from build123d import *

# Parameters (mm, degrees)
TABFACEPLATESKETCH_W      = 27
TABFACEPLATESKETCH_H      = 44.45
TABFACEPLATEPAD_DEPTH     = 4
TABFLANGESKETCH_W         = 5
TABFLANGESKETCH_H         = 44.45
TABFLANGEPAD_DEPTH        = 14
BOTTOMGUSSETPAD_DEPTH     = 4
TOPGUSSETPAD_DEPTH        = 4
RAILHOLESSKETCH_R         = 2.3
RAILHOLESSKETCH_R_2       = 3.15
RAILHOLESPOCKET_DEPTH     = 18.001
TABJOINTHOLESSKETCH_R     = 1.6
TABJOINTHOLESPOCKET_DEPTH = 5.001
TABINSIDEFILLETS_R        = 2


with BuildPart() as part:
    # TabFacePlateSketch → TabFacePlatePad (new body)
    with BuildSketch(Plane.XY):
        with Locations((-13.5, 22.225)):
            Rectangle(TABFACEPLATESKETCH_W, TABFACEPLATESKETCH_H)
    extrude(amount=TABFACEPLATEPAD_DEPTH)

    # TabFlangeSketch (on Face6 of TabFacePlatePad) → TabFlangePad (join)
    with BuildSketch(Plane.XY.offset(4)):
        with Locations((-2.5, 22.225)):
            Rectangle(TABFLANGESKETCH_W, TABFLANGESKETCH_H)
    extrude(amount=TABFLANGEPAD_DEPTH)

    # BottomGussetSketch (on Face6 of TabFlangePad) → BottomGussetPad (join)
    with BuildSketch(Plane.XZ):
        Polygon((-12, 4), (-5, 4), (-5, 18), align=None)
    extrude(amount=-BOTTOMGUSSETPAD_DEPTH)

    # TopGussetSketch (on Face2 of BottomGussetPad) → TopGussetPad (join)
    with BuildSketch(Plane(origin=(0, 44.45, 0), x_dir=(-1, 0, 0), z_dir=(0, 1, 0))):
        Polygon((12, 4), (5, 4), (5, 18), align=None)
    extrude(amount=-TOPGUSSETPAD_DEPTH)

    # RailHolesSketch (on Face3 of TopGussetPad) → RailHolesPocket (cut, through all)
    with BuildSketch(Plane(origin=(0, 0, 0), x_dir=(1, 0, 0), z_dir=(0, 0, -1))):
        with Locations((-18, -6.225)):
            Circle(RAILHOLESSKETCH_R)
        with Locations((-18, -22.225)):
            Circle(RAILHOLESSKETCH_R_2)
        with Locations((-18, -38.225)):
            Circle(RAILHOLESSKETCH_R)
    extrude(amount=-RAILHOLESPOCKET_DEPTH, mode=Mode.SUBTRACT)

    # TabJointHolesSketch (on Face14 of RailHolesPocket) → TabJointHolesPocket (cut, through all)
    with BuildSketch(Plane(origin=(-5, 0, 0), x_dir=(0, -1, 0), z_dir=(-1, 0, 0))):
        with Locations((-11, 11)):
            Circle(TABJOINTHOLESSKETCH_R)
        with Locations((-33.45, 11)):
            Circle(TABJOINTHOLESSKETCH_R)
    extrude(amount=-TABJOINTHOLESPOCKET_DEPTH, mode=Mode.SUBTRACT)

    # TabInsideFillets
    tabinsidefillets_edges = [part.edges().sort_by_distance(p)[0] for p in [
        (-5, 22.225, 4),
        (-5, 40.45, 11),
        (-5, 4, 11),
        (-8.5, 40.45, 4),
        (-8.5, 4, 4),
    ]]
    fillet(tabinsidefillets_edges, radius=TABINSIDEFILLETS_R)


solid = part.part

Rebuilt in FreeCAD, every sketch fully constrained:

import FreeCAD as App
import Part
import Sketcher
Q = App.Units.Quantity


def edges_at(feature, points):
    """Names of the edges that pass closest to the given points."""
    edges = feature.Shape.Edges
    near = lambda p: min(range(len(edges)), key=lambda i: edges[i].distToShape(Part.Vertex(*p))[0])
    return sorted({f"Edge{near(p) + 1}" for p in points})

doc = App.newDocument("Part")
body = doc.addObject("PartDesign::Body", "Body")

sketch1 = body.newObject("Sketcher::SketchObject", "Sketch")
sketch1.AttachmentSupport = (doc.getObject("XY_Plane"), [""])
sketch1.MapMode = "FlatFace"
sketch1.addGeometry(Part.LineSegment(App.Vector(-27, 44, 0), App.Vector(-27, 0, 0)), False)
sketch1.addGeometry(Part.LineSegment(App.Vector(-27, 0, 0), App.Vector(0, 0, 0)), False)
sketch1.addGeometry(Part.LineSegment(App.Vector(0, 0, 0), App.Vector(0, 44, 0)), False)
sketch1.addGeometry(Part.LineSegment(App.Vector(0, 44, 0), App.Vector(-27, 44, 0)), False)
sketch1.addConstraint(Sketcher.Constraint("Coincident", 0, 2, 1, 1))
sketch1.addConstraint(Sketcher.Constraint("Coincident", 1, 2, 2, 1))
sketch1.addConstraint(Sketcher.Constraint("Coincident", 2, 2, 3, 1))
sketch1.addConstraint(Sketcher.Constraint("Coincident", 3, 2, 0, 1))
sketch1.addConstraint(Sketcher.Constraint("Vertical", 0))
sketch1.addConstraint(Sketcher.Constraint("Horizontal", 1))
sketch1.addConstraint(Sketcher.Constraint("Vertical", 2))
sketch1.addConstraint(Sketcher.Constraint("Horizontal", 3))
sketch1.addConstraint(Sketcher.Constraint("Coincident", 1, 2, -1, 1))
sketch1.addConstraint(Sketcher.Constraint("DistanceX", 1, 1, 1, 2, Q("27 mm")))
sketch1.addConstraint(Sketcher.Constraint("DistanceY", 0, 2, 0, 1, Q("44.45 mm")))
pad1 = body.newObject("PartDesign::Pad", "Pad")
pad1.Profile = sketch1
pad1.Length = 4

sketch2 = body.newObject("Sketcher::SketchObject", "Sketch001")
sketch2.AttachmentSupport = (doc.getObject("XY_Plane"), [""])
sketch2.MapMode = "FlatFace"
sketch2.AttachmentOffset = App.Placement(App.Vector(0, 0, 4), App.Rotation())
sketch2.addGeometry(Part.LineSegment(App.Vector(-5, 44, 0), App.Vector(-5, 0, 0)), False)
sketch2.addGeometry(Part.LineSegment(App.Vector(-5, 0, 0), App.Vector(0, 0, 0)), False)
sketch2.addGeometry(Part.LineSegment(App.Vector(0, 0, 0), App.Vector(0, 44, 0)), False)
sketch2.addGeometry(Part.LineSegment(App.Vector(0, 44, 0), App.Vector(-5, 44, 0)), False)
sketch2.addConstraint(Sketcher.Constraint("Coincident", 0, 2, 1, 1))
sketch2.addConstraint(Sketcher.Constraint("Coincident", 1, 2, 2, 1))
sketch2.addConstraint(Sketcher.Constraint("Coincident", 2, 2, 3, 1))
sketch2.addConstraint(Sketcher.Constraint("Coincident", 3, 2, 0, 1))
sketch2.addConstraint(Sketcher.Constraint("Vertical", 0))
sketch2.addConstraint(Sketcher.Constraint("Horizontal", 1))
sketch2.addConstraint(Sketcher.Constraint("Vertical", 2))
sketch2.addConstraint(Sketcher.Constraint("Horizontal", 3))
sketch2.addConstraint(Sketcher.Constraint("Coincident", 1, 2, -1, 1))
sketch2.addConstraint(Sketcher.Constraint("DistanceX", 1, 1, 1, 2, Q("5 mm")))
sketch2.addConstraint(Sketcher.Constraint("DistanceY", 0, 2, 0, 1, Q("44.45 mm")))
pad2 = body.newObject("PartDesign::Pad", "Pad001")
pad2.Profile = sketch2
pad2.Length = 14

sketch3 = body.newObject("Sketcher::SketchObject", "Sketch002")
sketch3.AttachmentSupport = (doc.getObject("XZ_Plane"), [""])
sketch3.MapMode = "FlatFace"
sketch3.addGeometry(Part.LineSegment(App.Vector(-12, 4, 0), App.Vector(-5, 4, 0)), False)
sketch3.addGeometry(Part.LineSegment(App.Vector(-5, 4, 0), App.Vector(-5, 18, 0)), False)
sketch3.addGeometry(Part.LineSegment(App.Vector(-5, 18, 0), App.Vector(-12, 4, 0)), False)
sketch3.addConstraint(Sketcher.Constraint("Coincident", 0, 2, 1, 1))
sketch3.addConstraint(Sketcher.Constraint("Coincident", 1, 2, 2, 1))
sketch3.addConstraint(Sketcher.Constraint("Coincident", 2, 2, 0, 1))
sketch3.addConstraint(Sketcher.Constraint("Horizontal", 0))
sketch3.addConstraint(Sketcher.Constraint("Vertical", 1))
sketch3.addConstraint(Sketcher.Constraint("DistanceX", 0, 1, 0, 2, Q("7 mm")))
sketch3.addConstraint(Sketcher.Constraint("DistanceY", 1, 1, 1, 2, Q("14 mm")))
sketch3.addConstraint(Sketcher.Constraint("DistanceX", 0, 2, -1, 1, Q("5 mm")))
sketch3.addConstraint(Sketcher.Constraint("DistanceY", -1, 1, 0, 2, Q("4 mm")))
pad3 = body.newObject("PartDesign::Pad", "Pad002")
pad3.Profile = sketch3
pad3.Length = 4
pad3.Reversed = True

sketch4 = body.newObject("Sketcher::SketchObject", "Sketch003")
sketch4.AttachmentSupport = (doc.getObject("XZ_Plane"), [""])
sketch4.MapMode = "FlatFace"
sketch4.AttachmentOffset = App.Placement(App.Vector(0, 0, -44.45), App.Rotation())
sketch4.addGeometry(Part.LineSegment(App.Vector(-5, 4, 0), App.Vector(-12, 4, 0)), False)
sketch4.addGeometry(Part.LineSegment(App.Vector(-12, 4, 0), App.Vector(-5, 18, 0)), False)
sketch4.addGeometry(Part.LineSegment(App.Vector(-5, 18, 0), App.Vector(-5, 4, 0)), False)
sketch4.addConstraint(Sketcher.Constraint("Coincident", 0, 2, 1, 1))
sketch4.addConstraint(Sketcher.Constraint("Coincident", 1, 2, 2, 1))
sketch4.addConstraint(Sketcher.Constraint("Coincident", 2, 2, 0, 1))
sketch4.addConstraint(Sketcher.Constraint("Horizontal", 0))
sketch4.addConstraint(Sketcher.Constraint("Vertical", 2))
sketch4.addConstraint(Sketcher.Constraint("DistanceX", 0, 2, 0, 1, Q("7 mm")))
sketch4.addConstraint(Sketcher.Constraint("DistanceY", 2, 2, 2, 1, Q("14 mm")))
sketch4.addConstraint(Sketcher.Constraint("DistanceX", 0, 2, -1, 1, Q("12 mm")))
sketch4.addConstraint(Sketcher.Constraint("DistanceY", -1, 1, 0, 2, Q("4 mm")))
pad4 = body.newObject("PartDesign::Pad", "Pad003")
pad4.Profile = sketch4
pad4.Length = 4

sketch5 = body.newObject("Sketcher::SketchObject", "Sketch004")
sketch5.AttachmentSupport = (doc.getObject("XY_Plane"), [""])
sketch5.MapMode = "FlatFace"
sketch5.addGeometry(Part.Circle(App.Vector(-18, 6.2, 0), App.Vector(0, 0, 1), 2.3), False)
sketch5.addGeometry(Part.Circle(App.Vector(-18, 22.2, 0), App.Vector(0, 0, 1), 3.1), False)
sketch5.addGeometry(Part.Circle(App.Vector(-18, 38.2, 0), App.Vector(0, 0, 1), 2.3), False)
sketch5.addConstraint(Sketcher.Constraint("Equal", 0, 2))
sketch5.addConstraint(Sketcher.Constraint("Vertical", 0, 3, 1, 3))
sketch5.addConstraint(Sketcher.Constraint("Vertical", 1, 3, 2, 3))
sketch5.addConstraint(Sketcher.Constraint("Diameter", 0, Q("4.6 mm")))
sketch5.addConstraint(Sketcher.Constraint("Diameter", 1, Q("6.3 mm")))
sketch5.addConstraint(Sketcher.Constraint("DistanceX", 0, 3, -1, 1, Q("18 mm")))
sketch5.addConstraint(Sketcher.Constraint("DistanceY", 0, 3, 1, 3, Q("16 mm")))
sketch5.addConstraint(Sketcher.Constraint("DistanceY", 1, 3, 2, 3, Q("16 mm")))
sketch5.addConstraint(Sketcher.Constraint("DistanceY", -1, 1, 0, 3, Q("6.225 mm")))
pocket1 = body.newObject("PartDesign::Pocket", "Pocket")
pocket1.Profile = sketch5
pocket1.Type = "ThroughAll"
pocket1.Reversed = True

sketch6 = body.newObject("Sketcher::SketchObject", "Sketch005")
sketch6.AttachmentSupport = (doc.getObject("YZ_Plane"), [""])
sketch6.MapMode = "FlatFace"
sketch6.AttachmentOffset = App.Placement(App.Vector(0, 0, -5), App.Rotation())
sketch6.addGeometry(Part.Circle(App.Vector(11, 11, 0), App.Vector(0, 0, 1), 1.6), False)
sketch6.addGeometry(Part.Circle(App.Vector(33.5, 11, 0), App.Vector(0, 0, 1), 1.6), False)
sketch6.addConstraint(Sketcher.Constraint("Equal", 0, 1))
sketch6.addConstraint(Sketcher.Constraint("Horizontal", 0, 3, 1, 3))
sketch6.addConstraint(Sketcher.Constraint("Diameter", 0, Q("3.2 mm")))
sketch6.addConstraint(Sketcher.Constraint("DistanceX", -1, 1, 0, 3, Q("11 mm")))
sketch6.addConstraint(Sketcher.Constraint("DistanceY", -1, 1, 0, 3, Q("11 mm")))
sketch6.addConstraint(Sketcher.Constraint("DistanceX", -1, 1, 1, 3, Q("33.45 mm")))
pocket2 = body.newObject("PartDesign::Pocket", "Pocket001")
pocket2.Profile = sketch6
pocket2.Type = "ThroughAll"
pocket2.Reversed = True
doc.recompute()

fillet = body.newObject("PartDesign::Fillet", "Fillet")
fillet.Base = (pocket2, edges_at(pocket2, [
    (-5, 22.225, 4),
    (-5, 40.45, 11),
    (-5, 4, 11),
    (-8.5, 40.45, 4),
    (-8.5, 4, 4),
]))
fillet.Radius = 2

doc.recompute()
